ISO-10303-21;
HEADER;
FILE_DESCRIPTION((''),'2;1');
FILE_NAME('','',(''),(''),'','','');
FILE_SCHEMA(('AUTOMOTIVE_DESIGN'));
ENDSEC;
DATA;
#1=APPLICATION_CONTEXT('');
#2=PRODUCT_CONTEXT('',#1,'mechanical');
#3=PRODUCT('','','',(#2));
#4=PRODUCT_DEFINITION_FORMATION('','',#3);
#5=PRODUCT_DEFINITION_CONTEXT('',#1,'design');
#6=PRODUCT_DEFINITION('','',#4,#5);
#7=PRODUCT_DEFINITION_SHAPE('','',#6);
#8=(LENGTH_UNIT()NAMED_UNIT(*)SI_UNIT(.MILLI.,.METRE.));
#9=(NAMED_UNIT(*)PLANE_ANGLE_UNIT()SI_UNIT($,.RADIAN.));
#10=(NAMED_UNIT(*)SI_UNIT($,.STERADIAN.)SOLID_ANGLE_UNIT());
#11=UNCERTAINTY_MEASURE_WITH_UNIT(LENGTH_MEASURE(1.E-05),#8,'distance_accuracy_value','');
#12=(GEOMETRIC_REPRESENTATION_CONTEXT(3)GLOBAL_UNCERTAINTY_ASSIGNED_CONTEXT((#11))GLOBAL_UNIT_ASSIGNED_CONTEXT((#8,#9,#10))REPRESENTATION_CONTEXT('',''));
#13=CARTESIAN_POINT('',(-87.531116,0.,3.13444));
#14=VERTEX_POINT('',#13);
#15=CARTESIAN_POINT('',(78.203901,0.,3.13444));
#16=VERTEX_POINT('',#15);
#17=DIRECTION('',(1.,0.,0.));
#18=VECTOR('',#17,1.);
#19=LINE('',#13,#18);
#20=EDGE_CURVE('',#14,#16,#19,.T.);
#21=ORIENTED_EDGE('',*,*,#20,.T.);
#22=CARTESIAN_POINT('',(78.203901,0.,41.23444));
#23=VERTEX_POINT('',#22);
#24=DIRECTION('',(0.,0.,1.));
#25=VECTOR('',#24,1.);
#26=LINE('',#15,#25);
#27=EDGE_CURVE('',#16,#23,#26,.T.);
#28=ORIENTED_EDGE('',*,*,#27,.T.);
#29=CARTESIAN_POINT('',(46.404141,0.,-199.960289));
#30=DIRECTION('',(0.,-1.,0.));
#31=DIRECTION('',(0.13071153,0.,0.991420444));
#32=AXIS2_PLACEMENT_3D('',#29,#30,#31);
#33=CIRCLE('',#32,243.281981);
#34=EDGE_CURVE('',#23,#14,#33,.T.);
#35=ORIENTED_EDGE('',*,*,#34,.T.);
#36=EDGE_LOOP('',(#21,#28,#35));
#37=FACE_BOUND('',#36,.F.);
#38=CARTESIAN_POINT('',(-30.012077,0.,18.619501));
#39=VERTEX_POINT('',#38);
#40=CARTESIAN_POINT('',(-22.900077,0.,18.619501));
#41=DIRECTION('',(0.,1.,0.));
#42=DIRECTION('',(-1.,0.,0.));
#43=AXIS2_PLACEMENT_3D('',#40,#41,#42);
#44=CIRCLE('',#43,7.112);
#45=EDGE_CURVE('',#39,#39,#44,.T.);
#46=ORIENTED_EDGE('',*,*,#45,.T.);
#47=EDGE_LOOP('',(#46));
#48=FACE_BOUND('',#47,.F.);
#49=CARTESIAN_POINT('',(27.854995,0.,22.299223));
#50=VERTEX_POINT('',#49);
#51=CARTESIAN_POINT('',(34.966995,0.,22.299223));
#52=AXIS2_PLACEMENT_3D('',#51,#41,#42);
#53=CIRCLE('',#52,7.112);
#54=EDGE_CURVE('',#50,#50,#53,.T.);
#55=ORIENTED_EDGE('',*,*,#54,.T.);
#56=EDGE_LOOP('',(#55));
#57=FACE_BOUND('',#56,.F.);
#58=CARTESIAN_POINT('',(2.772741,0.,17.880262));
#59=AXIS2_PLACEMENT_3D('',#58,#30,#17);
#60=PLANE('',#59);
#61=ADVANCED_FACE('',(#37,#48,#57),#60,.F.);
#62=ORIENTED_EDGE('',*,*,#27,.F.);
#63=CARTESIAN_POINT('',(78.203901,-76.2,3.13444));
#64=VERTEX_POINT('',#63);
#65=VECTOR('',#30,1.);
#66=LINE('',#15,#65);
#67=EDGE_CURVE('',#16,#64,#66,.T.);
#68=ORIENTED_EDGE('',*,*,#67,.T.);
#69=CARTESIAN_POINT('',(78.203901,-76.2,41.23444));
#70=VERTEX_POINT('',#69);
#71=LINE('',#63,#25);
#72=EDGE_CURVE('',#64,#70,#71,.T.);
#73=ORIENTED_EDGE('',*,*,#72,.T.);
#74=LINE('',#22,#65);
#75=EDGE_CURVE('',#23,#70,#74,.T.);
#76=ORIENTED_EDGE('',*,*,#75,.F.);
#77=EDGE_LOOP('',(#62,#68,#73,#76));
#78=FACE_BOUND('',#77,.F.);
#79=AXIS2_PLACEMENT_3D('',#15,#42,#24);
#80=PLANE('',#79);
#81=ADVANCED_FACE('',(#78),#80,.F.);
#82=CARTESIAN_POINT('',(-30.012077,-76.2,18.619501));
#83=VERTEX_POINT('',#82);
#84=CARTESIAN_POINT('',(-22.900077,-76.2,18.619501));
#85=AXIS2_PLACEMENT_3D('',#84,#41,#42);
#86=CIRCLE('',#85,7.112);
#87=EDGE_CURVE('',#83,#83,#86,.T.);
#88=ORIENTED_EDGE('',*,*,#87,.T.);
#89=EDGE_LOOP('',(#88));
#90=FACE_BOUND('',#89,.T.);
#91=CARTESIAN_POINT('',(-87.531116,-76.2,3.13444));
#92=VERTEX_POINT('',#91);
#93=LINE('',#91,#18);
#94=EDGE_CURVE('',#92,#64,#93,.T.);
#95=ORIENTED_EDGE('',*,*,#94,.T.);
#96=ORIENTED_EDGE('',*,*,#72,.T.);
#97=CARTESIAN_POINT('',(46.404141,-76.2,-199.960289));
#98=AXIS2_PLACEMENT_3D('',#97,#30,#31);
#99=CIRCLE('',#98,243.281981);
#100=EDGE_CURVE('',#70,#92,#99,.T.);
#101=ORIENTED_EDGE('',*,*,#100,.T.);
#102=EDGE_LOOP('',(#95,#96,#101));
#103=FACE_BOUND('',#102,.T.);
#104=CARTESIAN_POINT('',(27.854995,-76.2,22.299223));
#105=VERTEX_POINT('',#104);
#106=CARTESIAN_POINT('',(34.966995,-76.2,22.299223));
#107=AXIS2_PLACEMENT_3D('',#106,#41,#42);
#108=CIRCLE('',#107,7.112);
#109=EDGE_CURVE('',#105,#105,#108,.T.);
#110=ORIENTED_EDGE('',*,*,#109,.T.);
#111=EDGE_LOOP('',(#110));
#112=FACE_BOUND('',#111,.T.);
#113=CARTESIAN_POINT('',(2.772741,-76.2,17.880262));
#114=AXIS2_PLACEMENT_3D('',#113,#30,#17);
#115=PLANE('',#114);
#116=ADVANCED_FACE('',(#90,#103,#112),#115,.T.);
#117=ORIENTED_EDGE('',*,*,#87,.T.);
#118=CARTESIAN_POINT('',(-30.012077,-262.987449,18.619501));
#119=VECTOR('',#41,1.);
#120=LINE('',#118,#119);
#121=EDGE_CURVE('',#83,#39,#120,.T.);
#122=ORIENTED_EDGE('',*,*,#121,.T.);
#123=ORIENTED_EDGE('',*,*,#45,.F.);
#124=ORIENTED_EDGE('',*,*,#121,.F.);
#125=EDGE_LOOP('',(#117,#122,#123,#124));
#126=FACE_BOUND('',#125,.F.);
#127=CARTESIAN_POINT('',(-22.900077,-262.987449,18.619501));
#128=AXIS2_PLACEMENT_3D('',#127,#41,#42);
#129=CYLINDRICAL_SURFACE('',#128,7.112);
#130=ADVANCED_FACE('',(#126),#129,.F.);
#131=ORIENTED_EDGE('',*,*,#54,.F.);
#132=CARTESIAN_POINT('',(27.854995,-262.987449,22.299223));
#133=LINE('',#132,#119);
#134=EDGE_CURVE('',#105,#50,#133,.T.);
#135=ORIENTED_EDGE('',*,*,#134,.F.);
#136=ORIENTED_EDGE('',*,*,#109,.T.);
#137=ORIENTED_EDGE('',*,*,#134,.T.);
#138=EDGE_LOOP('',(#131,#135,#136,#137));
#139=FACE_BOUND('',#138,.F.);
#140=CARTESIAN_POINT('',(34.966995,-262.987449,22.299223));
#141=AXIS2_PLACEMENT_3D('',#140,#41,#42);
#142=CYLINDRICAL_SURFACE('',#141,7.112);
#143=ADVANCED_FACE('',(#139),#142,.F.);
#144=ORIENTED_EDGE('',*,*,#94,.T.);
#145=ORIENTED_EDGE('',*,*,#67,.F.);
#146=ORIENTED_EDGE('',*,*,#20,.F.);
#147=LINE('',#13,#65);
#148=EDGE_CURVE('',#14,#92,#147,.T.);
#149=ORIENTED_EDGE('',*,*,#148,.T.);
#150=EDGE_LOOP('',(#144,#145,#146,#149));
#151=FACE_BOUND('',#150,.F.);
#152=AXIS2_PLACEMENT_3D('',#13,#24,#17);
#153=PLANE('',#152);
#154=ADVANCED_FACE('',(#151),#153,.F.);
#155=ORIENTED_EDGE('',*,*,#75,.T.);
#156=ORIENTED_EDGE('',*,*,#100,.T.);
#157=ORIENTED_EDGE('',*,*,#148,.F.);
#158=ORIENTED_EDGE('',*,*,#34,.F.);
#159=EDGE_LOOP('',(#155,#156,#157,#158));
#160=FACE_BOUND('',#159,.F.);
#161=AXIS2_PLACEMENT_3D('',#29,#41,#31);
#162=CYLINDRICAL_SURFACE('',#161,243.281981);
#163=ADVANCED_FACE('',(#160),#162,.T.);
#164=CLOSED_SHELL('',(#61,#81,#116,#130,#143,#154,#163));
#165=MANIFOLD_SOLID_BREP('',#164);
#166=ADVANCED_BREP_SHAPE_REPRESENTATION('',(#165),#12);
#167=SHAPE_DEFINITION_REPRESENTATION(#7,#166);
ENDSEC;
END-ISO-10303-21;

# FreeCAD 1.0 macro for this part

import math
import FreeCAD as App
import Part
import Sketcher
Q = App.Units.Quantity

doc = App.newDocument("Part")
body = doc.addObject("PartDesign::Body", "Body")

# Sketch on XZ plane
sketch1 = body.newObject("Sketcher::SketchObject", "Sketch")
sketch1.AttachmentSupport = (doc.getObject("XZ_Plane"), [""])
sketch1.MapMode = "FlatFace"
sketch1.addGeometry(Part.ArcOfCircle(Part.Circle(App.Vector(46, -200, 0), App.Vector(0, 0, 1), 243), math.radians(82), math.radians(123)), False)
sketch1.addGeometry(Part.LineSegment(App.Vector(-88, 3, 0), App.Vector(78, 3, 0)), False)
sketch1.addGeometry(Part.LineSegment(App.Vector(78, 3, 0), App.Vector(78, 41, 0)), False)
sketch1.addConstraint(Sketcher.Constraint("Coincident", 0, 2, 1, 1))
sketch1.addConstraint(Sketcher.Constraint("Coincident", 1, 2, 2, 1))
sketch1.addConstraint(Sketcher.Constraint("Coincident", 2, 2, 0, 1))
sketch1.addConstraint(Sketcher.Constraint("Horizontal", 1))
sketch1.addConstraint(Sketcher.Constraint("Vertical", 2))
sketch1.addConstraint(Sketcher.Constraint("DistanceY", 2, 1, 2, 2, Q("1.5 in")))
sketch1.addConstraint(Sketcher.Constraint("Radius", 0, Q("243.281981 mm")))
sketch1.addConstraint(Sketcher.Constraint("DistanceX", -1, 1, 1, 2, Q("78.203901 mm")))
sketch1.addConstraint(Sketcher.Constraint("DistanceX", 1, 1, 1, 2, Q("165.735017 mm")))
sketch1.addConstraint(Sketcher.Constraint("DistanceY", 0, 3, -1, 1, Q("199.960289 mm")))
pad1 = body.newObject("PartDesign::Pad", "Pad")
pad1.Profile = sketch1
pad1.Length = Q("3 in")

# Sketch on XZ plane
sketch2 = body.newObject("Sketcher::SketchObject", "Sketch001")
sketch2.AttachmentSupport = (doc.getObject("XZ_Plane"), [""])
sketch2.MapMode = "FlatFace"
sketch2.AttachmentOffset = App.Placement(App.Vector(0, 0, 3 * 25.4), App.Rotation())
sketch2.addGeometry(Part.Circle(App.Vector(-23, 19, 0), App.Vector(0, 0, 1), 7), False)
sketch2.addGeometry(Part.Circle(App.Vector(35, 22, 0), App.Vector(0, 0, 1), 7), False)
sketch2.addConstraint(Sketcher.Constraint("Equal", 0, 1))
sketch2.addConstraint(Sketcher.Constraint("Diameter", 0, Q("0.56 in")))
sketch2.addConstraint(Sketcher.Constraint("DistanceY", -1, 1, 0, 3, Q("18.619501 mm")))
sketch2.addConstraint(Sketcher.Constraint("DistanceX", 0, 3, 1, 3, Q("57.867072 mm")))
sketch2.addConstraint(Sketcher.Constraint("DistanceX", 0, 3, -1, 1, Q("22.900077 mm")))
sketch2.addConstraint(Sketcher.Constraint("DistanceY", -1, 1, 1, 3, Q("22.299223 mm")))
doc.recompute()
hole = body.newObject("PartDesign::Hole", "Hole")
hole.Profile = sketch2
hole.ThreadType = "None"
hole.Diameter = Q("0.56 in")
hole.DepthType = "ThroughAll"

doc.recompute()
